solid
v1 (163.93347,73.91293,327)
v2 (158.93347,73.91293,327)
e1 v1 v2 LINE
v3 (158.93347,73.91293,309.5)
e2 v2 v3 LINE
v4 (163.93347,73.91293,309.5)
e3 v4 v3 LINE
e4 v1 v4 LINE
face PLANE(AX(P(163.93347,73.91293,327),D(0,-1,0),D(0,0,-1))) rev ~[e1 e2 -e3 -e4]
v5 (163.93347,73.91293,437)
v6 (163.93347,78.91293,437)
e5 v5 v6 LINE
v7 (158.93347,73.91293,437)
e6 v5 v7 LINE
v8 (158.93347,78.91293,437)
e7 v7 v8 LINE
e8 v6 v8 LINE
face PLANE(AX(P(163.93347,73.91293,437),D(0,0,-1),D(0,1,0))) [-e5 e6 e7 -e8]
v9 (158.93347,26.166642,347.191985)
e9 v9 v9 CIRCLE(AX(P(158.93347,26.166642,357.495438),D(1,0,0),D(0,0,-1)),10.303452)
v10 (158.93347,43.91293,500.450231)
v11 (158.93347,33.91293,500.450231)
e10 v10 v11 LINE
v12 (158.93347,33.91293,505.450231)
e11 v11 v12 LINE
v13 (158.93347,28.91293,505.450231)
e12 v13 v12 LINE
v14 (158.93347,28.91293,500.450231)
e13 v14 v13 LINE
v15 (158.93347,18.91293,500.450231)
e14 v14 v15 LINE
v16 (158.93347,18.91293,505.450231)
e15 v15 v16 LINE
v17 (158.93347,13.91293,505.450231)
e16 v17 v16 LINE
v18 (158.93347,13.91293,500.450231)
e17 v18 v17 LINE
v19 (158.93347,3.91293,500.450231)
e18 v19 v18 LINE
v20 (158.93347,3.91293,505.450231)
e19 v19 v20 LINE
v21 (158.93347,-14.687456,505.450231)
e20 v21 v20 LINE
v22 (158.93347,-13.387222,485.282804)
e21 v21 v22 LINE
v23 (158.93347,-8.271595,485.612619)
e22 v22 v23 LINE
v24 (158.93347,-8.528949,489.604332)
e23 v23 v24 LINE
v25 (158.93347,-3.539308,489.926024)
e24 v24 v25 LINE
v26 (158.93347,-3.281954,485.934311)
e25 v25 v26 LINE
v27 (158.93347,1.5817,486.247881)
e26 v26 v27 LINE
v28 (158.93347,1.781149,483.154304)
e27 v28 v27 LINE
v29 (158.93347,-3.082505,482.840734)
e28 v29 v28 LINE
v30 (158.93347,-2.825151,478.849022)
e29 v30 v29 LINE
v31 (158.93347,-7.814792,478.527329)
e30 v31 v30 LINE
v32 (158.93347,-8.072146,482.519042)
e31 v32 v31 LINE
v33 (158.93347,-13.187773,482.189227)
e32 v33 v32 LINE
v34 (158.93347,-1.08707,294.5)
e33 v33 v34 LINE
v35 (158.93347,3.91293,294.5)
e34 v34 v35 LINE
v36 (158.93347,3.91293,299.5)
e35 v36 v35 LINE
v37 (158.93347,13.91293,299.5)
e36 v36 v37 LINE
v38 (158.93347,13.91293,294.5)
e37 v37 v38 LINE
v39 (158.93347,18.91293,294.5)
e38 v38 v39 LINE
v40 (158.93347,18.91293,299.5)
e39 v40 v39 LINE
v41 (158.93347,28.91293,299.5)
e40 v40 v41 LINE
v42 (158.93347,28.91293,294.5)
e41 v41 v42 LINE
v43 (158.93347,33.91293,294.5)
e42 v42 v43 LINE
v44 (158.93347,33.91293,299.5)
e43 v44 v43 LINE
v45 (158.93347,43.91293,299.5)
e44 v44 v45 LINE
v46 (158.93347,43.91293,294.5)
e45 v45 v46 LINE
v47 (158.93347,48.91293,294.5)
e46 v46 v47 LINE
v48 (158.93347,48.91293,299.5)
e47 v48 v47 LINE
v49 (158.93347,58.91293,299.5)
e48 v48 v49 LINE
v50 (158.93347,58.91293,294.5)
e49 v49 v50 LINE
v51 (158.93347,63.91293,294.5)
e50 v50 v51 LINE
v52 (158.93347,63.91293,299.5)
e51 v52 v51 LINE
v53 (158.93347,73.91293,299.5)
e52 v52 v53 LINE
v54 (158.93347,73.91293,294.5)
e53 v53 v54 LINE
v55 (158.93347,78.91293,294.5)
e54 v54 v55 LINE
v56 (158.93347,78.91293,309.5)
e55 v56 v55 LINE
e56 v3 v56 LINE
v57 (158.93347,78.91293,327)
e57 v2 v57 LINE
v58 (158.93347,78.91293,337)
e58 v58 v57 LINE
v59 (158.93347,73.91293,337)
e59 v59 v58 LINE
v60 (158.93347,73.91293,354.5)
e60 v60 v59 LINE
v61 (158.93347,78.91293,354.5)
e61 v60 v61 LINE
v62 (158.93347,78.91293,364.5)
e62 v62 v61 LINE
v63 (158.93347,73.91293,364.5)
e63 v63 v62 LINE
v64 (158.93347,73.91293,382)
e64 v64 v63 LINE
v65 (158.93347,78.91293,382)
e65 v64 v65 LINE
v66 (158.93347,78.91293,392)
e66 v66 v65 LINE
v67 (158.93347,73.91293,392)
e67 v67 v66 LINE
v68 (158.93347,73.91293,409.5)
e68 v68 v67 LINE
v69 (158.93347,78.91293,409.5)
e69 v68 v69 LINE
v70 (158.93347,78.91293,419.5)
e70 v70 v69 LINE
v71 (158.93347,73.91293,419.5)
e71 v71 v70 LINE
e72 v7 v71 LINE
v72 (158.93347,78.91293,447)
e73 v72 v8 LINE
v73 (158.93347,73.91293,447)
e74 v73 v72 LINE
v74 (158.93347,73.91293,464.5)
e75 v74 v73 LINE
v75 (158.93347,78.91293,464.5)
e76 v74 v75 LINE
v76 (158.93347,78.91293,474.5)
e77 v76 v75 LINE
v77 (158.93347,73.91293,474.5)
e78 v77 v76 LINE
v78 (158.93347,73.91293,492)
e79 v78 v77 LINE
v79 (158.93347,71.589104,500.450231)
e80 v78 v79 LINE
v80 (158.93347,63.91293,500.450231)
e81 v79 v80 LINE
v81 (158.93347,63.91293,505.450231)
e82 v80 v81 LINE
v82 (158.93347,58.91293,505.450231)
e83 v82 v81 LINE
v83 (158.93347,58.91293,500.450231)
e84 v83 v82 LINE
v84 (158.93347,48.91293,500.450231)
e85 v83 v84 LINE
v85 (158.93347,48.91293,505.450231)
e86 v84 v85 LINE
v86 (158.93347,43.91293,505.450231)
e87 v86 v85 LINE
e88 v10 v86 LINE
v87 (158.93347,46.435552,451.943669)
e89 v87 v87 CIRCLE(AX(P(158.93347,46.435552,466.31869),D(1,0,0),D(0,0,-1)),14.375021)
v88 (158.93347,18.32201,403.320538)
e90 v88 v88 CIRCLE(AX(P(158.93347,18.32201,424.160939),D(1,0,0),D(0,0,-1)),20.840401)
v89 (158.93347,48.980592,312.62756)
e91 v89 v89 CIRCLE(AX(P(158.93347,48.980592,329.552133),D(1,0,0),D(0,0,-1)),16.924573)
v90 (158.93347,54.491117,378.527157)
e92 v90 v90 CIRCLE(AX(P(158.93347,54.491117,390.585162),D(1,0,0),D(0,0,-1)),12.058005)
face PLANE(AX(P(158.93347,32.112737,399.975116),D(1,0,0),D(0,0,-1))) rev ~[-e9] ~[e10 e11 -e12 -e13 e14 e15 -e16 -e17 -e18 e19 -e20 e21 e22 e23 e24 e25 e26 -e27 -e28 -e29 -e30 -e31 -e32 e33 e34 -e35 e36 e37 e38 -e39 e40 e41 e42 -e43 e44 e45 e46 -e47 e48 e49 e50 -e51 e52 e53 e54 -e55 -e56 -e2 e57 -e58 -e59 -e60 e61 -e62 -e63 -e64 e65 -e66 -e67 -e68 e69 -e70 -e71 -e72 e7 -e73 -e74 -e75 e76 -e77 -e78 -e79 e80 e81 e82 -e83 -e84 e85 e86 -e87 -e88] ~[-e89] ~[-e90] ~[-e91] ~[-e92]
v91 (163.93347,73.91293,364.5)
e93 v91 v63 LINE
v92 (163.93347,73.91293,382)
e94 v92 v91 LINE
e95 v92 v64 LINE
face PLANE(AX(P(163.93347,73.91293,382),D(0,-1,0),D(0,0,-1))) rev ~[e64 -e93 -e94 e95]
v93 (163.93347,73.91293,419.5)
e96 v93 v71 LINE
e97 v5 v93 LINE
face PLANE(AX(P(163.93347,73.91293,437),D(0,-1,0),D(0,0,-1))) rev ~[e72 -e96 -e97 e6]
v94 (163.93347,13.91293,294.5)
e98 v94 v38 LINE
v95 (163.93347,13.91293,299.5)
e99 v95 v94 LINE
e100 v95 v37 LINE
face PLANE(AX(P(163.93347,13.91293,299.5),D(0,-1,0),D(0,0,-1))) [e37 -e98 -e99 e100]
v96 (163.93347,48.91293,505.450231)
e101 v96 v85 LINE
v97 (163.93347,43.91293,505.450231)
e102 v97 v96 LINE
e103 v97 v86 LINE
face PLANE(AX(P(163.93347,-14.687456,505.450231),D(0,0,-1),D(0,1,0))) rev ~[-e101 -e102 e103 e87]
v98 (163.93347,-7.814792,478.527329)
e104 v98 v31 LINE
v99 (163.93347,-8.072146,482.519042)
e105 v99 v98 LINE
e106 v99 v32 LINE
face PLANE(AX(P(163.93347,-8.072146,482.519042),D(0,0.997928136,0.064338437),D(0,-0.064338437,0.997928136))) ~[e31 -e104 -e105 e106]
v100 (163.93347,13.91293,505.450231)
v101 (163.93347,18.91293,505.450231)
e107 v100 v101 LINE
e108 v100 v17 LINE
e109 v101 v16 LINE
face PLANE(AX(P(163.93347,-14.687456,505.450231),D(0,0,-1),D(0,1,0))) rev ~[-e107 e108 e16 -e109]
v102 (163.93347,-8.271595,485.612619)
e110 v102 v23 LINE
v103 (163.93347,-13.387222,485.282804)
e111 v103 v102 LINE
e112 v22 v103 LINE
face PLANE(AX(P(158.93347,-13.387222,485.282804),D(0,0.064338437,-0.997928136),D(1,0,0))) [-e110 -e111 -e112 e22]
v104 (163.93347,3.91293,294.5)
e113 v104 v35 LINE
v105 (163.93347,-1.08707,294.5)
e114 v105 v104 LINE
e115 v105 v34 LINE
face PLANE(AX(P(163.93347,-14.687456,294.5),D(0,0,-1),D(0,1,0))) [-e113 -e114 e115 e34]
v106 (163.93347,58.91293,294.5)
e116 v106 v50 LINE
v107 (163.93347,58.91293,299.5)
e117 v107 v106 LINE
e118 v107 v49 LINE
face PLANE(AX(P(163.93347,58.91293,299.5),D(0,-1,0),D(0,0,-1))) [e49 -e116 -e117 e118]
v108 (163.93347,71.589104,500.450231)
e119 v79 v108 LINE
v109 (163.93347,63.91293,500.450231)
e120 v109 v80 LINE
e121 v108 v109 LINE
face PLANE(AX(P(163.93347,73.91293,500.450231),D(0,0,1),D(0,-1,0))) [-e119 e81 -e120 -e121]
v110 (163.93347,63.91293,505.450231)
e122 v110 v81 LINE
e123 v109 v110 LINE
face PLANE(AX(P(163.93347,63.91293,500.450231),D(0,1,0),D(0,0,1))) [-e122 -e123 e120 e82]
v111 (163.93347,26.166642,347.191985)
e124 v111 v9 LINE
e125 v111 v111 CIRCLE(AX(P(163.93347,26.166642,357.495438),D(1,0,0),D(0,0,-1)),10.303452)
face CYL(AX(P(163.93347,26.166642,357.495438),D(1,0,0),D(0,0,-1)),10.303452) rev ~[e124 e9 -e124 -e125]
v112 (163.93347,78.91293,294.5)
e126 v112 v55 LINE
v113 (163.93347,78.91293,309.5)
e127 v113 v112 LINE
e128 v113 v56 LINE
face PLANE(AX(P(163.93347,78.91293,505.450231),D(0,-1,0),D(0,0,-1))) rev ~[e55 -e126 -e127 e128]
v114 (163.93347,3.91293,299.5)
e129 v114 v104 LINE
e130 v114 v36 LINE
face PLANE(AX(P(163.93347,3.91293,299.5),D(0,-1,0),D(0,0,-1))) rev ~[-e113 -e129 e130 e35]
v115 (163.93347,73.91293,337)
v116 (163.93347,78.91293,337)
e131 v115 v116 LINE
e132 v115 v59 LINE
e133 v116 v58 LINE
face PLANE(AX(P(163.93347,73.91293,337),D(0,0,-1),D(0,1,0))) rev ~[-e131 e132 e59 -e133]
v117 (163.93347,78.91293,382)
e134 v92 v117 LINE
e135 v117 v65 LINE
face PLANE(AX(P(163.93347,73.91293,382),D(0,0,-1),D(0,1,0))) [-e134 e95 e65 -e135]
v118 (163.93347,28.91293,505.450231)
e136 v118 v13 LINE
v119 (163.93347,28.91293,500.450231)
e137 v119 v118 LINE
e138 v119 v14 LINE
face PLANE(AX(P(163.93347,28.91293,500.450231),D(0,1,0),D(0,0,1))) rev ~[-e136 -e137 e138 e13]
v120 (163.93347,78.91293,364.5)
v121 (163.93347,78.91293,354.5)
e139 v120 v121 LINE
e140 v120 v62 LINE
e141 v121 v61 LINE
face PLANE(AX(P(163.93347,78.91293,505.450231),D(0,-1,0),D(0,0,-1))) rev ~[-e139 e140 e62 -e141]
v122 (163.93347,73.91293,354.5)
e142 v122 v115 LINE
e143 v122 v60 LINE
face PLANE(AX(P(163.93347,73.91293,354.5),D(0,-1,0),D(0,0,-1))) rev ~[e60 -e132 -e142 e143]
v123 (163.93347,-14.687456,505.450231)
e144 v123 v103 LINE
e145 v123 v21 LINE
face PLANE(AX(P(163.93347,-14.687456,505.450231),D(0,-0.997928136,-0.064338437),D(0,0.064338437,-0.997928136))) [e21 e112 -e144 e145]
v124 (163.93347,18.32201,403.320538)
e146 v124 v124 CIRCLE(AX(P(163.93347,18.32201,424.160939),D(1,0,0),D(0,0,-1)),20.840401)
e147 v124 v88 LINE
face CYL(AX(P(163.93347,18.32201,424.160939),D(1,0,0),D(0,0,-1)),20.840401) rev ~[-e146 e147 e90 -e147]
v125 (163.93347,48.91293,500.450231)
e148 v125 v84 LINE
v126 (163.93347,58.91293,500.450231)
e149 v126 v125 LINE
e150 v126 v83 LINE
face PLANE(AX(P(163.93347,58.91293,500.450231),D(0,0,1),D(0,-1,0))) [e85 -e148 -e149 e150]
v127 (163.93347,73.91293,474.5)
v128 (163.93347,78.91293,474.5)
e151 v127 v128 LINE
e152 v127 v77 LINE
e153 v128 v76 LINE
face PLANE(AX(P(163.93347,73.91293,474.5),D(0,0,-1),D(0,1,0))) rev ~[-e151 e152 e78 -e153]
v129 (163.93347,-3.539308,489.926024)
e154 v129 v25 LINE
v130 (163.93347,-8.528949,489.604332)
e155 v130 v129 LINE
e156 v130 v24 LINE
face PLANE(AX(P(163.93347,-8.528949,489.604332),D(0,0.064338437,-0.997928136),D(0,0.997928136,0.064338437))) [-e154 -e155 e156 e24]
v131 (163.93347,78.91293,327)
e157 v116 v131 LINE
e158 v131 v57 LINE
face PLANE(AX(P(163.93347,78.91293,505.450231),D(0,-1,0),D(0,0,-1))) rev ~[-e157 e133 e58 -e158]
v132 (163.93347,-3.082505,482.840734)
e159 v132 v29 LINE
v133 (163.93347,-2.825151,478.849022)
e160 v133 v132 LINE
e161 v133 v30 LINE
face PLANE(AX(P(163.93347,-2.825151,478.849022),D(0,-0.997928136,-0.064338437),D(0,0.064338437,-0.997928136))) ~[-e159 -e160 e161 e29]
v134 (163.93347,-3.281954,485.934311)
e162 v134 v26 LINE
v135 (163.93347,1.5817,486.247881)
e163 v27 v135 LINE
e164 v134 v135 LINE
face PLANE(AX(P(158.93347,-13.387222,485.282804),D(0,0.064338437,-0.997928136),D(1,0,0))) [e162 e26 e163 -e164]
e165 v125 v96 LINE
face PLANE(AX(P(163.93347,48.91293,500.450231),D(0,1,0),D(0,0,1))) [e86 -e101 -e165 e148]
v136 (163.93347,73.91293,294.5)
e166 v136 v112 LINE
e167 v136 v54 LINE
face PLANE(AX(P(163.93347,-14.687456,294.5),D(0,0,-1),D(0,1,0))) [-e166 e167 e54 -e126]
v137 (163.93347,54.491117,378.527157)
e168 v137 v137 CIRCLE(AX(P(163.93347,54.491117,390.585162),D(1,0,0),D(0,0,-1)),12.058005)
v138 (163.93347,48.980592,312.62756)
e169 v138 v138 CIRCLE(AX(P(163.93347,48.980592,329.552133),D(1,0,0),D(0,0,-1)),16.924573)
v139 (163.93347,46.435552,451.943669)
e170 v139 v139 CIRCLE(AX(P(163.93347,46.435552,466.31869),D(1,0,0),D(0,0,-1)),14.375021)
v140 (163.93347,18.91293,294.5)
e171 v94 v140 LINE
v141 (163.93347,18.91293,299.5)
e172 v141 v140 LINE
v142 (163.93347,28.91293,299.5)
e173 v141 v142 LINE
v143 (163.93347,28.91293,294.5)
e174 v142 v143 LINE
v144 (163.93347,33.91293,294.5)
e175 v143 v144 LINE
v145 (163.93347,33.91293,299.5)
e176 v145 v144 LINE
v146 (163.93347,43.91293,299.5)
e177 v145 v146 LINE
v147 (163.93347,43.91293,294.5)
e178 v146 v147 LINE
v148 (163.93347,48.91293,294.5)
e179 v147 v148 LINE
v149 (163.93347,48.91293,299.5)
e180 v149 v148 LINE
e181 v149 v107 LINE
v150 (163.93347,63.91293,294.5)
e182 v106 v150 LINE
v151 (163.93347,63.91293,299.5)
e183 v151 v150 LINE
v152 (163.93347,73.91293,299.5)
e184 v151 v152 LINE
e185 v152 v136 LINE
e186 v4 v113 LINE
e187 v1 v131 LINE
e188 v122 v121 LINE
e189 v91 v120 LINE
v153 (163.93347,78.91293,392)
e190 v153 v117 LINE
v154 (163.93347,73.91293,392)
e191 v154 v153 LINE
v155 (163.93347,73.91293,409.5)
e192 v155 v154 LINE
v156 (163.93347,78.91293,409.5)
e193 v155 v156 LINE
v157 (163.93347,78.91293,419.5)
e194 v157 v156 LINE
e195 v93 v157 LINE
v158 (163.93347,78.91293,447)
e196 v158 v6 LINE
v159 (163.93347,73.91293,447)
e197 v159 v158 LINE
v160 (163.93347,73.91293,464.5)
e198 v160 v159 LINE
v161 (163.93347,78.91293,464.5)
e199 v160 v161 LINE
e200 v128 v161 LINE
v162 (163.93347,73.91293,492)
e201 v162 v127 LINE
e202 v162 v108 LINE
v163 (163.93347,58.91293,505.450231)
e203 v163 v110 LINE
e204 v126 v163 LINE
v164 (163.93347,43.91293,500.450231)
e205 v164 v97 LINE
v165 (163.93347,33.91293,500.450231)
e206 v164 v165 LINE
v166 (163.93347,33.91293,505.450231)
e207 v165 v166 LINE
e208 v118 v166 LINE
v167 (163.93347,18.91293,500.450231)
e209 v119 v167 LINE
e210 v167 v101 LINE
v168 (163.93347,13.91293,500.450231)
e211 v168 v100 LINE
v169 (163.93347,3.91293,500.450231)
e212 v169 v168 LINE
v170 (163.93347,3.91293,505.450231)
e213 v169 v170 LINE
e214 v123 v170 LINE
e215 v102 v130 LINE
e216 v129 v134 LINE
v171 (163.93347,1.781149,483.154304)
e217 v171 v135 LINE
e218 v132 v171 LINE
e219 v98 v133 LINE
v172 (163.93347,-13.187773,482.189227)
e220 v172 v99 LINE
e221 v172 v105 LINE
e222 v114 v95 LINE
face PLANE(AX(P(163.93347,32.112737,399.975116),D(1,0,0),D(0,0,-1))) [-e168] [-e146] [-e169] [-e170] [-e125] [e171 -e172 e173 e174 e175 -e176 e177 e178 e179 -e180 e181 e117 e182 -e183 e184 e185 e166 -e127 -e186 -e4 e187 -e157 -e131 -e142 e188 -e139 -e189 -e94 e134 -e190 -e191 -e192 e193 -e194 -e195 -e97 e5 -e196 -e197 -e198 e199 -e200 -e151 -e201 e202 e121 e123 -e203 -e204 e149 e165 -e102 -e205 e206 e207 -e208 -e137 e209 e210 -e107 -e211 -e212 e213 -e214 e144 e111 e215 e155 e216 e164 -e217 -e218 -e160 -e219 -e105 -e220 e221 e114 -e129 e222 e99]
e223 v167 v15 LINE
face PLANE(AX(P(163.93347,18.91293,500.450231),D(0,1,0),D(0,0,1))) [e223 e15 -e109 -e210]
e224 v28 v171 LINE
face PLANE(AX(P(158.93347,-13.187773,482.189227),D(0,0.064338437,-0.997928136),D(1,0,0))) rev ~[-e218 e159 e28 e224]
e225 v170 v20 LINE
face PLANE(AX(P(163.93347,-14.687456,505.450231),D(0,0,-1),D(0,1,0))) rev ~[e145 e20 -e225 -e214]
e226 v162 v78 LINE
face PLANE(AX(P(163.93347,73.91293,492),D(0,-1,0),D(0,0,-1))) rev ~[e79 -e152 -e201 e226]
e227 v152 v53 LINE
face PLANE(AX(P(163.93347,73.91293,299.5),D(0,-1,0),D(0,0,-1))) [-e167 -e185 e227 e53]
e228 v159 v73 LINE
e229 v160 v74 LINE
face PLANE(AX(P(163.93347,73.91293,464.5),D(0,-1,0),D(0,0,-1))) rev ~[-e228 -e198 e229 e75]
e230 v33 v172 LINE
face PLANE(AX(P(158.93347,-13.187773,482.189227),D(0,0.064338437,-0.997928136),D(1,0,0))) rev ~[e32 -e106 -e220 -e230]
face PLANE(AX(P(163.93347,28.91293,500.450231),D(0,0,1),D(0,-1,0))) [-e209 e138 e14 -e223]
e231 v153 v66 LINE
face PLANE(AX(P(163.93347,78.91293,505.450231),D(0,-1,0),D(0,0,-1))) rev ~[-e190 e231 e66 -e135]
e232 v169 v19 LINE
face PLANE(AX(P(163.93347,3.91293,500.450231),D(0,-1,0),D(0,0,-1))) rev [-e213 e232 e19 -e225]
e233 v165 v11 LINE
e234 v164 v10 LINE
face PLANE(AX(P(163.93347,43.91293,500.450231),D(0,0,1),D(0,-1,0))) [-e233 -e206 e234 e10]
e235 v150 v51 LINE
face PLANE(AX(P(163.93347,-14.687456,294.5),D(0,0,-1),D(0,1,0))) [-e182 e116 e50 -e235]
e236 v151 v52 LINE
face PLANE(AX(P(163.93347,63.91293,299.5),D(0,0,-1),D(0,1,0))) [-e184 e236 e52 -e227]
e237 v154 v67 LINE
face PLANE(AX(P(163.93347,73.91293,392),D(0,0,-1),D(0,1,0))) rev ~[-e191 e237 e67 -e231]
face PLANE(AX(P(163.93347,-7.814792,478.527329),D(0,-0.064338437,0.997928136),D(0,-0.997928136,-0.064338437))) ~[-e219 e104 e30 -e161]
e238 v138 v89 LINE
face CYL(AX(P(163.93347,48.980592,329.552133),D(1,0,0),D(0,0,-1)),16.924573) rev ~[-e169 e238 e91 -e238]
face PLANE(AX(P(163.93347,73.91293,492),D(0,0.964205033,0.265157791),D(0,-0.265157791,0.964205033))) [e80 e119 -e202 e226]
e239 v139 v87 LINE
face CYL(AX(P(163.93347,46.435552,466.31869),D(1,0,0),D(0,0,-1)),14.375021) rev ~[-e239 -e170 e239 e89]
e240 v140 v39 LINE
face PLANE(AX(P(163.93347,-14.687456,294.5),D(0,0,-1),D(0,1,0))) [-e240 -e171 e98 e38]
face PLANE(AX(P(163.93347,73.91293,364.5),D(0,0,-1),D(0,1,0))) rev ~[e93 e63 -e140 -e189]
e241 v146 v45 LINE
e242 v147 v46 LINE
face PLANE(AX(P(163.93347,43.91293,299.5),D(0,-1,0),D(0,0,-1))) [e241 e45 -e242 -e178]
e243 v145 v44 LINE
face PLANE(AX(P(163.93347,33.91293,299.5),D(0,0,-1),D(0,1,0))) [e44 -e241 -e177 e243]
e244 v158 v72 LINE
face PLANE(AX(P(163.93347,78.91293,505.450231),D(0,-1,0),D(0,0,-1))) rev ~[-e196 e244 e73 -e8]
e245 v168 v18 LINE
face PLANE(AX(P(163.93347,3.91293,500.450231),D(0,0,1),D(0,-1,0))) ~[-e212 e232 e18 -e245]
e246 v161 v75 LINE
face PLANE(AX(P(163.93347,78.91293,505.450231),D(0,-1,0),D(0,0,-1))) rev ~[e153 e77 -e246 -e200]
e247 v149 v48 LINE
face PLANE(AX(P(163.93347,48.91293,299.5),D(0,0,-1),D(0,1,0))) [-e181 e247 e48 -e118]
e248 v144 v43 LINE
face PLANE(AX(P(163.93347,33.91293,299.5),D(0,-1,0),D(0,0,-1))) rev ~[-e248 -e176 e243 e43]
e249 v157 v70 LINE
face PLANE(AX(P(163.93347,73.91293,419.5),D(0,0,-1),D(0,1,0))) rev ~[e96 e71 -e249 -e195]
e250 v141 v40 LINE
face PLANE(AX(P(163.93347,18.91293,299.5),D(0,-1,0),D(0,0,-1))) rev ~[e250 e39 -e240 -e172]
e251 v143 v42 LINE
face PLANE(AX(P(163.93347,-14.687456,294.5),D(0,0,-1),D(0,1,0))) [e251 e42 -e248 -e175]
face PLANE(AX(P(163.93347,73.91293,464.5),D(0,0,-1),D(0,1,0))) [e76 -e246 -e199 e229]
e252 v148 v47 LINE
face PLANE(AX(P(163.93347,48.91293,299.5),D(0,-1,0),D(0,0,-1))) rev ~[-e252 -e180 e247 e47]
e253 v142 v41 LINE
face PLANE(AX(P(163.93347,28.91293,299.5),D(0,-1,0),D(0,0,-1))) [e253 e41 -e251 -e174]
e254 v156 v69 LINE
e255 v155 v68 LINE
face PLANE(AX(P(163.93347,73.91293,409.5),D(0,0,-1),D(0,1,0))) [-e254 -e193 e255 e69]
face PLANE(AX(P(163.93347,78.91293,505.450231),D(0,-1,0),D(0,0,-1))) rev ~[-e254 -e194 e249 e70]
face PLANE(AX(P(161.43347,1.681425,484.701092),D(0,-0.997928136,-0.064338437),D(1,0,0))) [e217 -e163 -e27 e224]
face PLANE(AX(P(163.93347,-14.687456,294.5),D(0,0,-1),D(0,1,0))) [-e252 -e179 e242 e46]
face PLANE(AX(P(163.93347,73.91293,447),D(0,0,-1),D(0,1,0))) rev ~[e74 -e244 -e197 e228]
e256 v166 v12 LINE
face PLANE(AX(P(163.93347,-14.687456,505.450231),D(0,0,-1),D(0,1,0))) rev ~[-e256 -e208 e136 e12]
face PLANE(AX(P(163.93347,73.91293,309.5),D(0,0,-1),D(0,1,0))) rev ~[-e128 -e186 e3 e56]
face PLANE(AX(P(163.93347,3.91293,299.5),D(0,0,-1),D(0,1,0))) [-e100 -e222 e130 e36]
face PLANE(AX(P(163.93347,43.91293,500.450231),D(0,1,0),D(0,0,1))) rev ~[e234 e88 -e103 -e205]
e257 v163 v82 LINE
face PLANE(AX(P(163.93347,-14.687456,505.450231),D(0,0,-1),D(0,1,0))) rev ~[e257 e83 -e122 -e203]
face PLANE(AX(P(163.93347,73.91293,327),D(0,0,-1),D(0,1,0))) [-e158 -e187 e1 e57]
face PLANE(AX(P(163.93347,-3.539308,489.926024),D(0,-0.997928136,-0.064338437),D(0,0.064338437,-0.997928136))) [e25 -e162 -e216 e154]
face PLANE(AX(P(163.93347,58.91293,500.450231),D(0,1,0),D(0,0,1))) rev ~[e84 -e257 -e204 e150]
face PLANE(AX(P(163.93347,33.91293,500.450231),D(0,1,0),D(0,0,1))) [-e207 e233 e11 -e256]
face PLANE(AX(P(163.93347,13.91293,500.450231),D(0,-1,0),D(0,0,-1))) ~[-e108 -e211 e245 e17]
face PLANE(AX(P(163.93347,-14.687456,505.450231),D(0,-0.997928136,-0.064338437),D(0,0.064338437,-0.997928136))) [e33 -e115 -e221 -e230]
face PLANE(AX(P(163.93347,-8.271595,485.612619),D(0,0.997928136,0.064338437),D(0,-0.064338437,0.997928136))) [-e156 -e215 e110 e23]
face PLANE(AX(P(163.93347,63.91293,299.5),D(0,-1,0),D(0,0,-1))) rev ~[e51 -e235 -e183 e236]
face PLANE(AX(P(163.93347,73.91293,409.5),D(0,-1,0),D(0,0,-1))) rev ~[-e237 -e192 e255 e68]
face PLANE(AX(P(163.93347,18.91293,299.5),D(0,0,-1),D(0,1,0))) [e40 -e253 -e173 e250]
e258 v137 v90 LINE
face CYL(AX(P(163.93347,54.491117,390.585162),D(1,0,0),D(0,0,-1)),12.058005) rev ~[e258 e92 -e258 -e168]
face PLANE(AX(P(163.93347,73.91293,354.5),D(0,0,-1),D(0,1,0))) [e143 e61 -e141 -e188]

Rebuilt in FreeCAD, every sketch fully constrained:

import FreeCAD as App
import Part
import Sketcher

V = App.Vector
Q = App.Units.Quantity

doc = App.newDocument("Part")
params = doc.addObject("Spreadsheet::Sheet", "Params")
for row, (alias, value) in enumerate([
    ("pad1_length", "5 mm"),
    ("pocket1_length", "5 mm"),
    ("sketch3_width", "10 mm"),
    ("sketch3_height", "5 mm"),
    ("pocket2_length", "5 mm"),
    ("linearpattern_pitch", "15 mm"),
    ("sketch4_width", "5 mm"),
    ("sketch4_height", "17.5 mm"),
    ("pocket3_length", "5 mm"),
    ("linearpattern2_pitch", "27.5 mm"),
    ("sketch5_width", "5 mm"),
    ("pocket4_length", "5 mm"),
    ("pocket5_length", "5 mm"),
    ("sketch7_width", "10 mm"),
    ("sketch7_height", "5 mm"),
    ("pocket6_length", "5 mm"),
    ("sketch8_width", "10 mm"),
    ("sketch8_height", "5 mm"),
    ("pocket7_length", "5 mm"),
    ("sketch9_width", "10 mm"),
    ("sketch9_height", "5 mm"),
    ("pocket8_length", "5 mm"),
    ("sketch10_width", "10 mm"),
    ("sketch10_height", "5 mm"),
    ("pocket9_length", "5 mm"),
    ("sketch11_width", "5 mm"),
    ("sketch11_height", "3.1 mm"),
    ("pocket10_length", "15 mm"),
    ("sketch12_length", "4 mm"),
    ("sketch12_length2", "5 mm"),
    ("pocket11_length", "15 mm"),
], start=1):
    params.set(f"A{row}", alias)
    params.set(f"B{row}", "=" + value)
    params.setAlias(f"B{row}", alias)

body = doc.addObject("PartDesign::Body", "Body")

# Sketch on YZ plane
sketch1 = doc.addObject("Sketcher::SketchObject", "Sketch")
body.addObject(sketch1)
sketch1.AttachmentSupport = (doc.YZ_Plane, [""])
sketch1.MapMode = "FlatFace"
sketch1.AttachmentOffset = App.Placement(V(0, 0, 163.93347), App.Rotation())
sketch1.addGeometry([
    Part.LineSegment(V(79, 505, 0), V(-15, 505, 0)),
    Part.LineSegment(V(-15, 505, 0), V(-15, 294, 0)),
    Part.LineSegment(V(-15, 294, 0), V(79, 294, 0)),
    Part.LineSegment(V(79, 294, 0), V(79, 505, 0)),
], False)
sketch1.addConstraint([
    Sketcher.Constraint("Coincident", 0, 2, 1, 1),
    Sketcher.Constraint("Coincident", 1, 2, 2, 1),
    Sketcher.Constraint("Coincident", 2, 2, 3, 1),
    Sketcher.Constraint("Coincident", 3, 2, 0, 1),
    Sketcher.Constraint("Horizontal", 0),
    Sketcher.Constraint("Vertical", 1),
    Sketcher.Constraint("Horizontal", 2),
    Sketcher.Constraint("Vertical", 3),
    Sketcher.Constraint("DistanceY", -1, 1, 1, 2, Q("294.5 mm")),
    Sketcher.Constraint("DistanceY", 1, 2, 1, 1, Q("210.950231 mm")),
    Sketcher.Constraint("DistanceX", 0, 2, 0, 1, Q("93.600386 mm")),
    Sketcher.Constraint("DistanceX", -1, 1, 2, 2, Q("78.91293 mm")),
])
pad1 = doc.addObject("PartDesign::Pad", "Pad")
body.addObject(pad1)
pad1.Profile = sketch1
pad1.setExpression("Length", "Params.pad1_length")
pad1.Reversed = True

# Sketch on YZ plane
sketch2 = doc.addObject("Sketcher::SketchObject", "Sketch001")
body.addObject(sketch2)
sketch2.AttachmentSupport = (doc.YZ_Plane, [""])
sketch2.MapMode = "FlatFace"
sketch2.AttachmentOffset = App.Placement(V(0, 0, 163.93347), App.Rotation())
sketch2.addGeometry([
    Part.LineSegment(V(-1, 294, 0), V(-15, 505, 0)),
    Part.LineSegment(V(-15, 505, 0), V(-15, 294, 0)),
    Part.LineSegment(V(-15, 294, 0), V(-1, 294, 0)),
], False)
sketch2.addConstraint([
    Sketcher.Constraint("Coincident", 0, 2, 1, 1),
    Sketcher.Constraint("Coincident", 1, 2, 2, 1),
    Sketcher.Constraint("Coincident", 2, 2, 0, 1),
    Sketcher.Constraint("Vertical", 1),
    Sketcher.Constraint("Horizontal", 2),
    Sketcher.Constraint("DistanceY", -1, 1, 1, 2, Q("294.5 mm")),
    Sketcher.Constraint("Distance", 0, Q("211.388199 mm")),
    Sketcher.Constraint("DistanceY", 1, 2, 1, 1, Q("210.950231 mm")),
    Sketcher.Constraint("DistanceX", 2, 2, -1, 1, Q("1.08707 mm")),
])
pocket1 = doc.addObject("PartDesign::Pocket", "Pocket")
body.addObject(pocket1)
pocket1.Profile = sketch2
pocket1.setExpression("Length", "Params.pocket1_length")

# Sketch on YZ plane
sketch3 = doc.addObject("Sketcher::SketchObject", "Sketch002")
body.addObject(sketch3)
sketch3.AttachmentSupport = (doc.YZ_Plane, [""])
sketch3.MapMode = "FlatFace"
sketch3.AttachmentOffset = App.Placement(V(0, 0, 163.93347), App.Rotation())
sketch3.addGeometry([
    Part.LineSegment(V(14, 300, 0), V(4, 300, 0)),
    Part.LineSegment(V(4, 300, 0), V(4, 294, 0)),
    Part.LineSegment(V(4, 294, 0), V(14, 294, 0)),
    Part.LineSegment(V(14, 294, 0), V(14, 300, 0)),
], False)
sketch3.addConstraint([
    Sketcher.Constraint("Coincident", 0, 2, 1, 1),
    Sketcher.Constraint("Coincident", 1, 2, 2, 1),
    Sketcher.Constraint("Coincident", 2, 2, 3, 1),
    Sketcher.Constraint("Coincident", 3, 2, 0, 1),
    Sketcher.Constraint("Horizontal", 0),
    Sketcher.Constraint("Vertical", 1),
    Sketcher.Constraint("Horizontal", 2),
    Sketcher.Constraint("Vertical", 3),
    Sketcher.Constraint("DistanceX", 0, 2, 0, 1, Q("10 mm")),
    Sketcher.Constraint("DistanceY", 1, 2, 1, 1, Q("5 mm")),
    Sketcher.Constraint("DistanceY", -1, 1, 0, 2, Q("299.5 mm")),
    Sketcher.Constraint("DistanceX", -1, 1, 0, 2, Q("3.91293 mm")),
])
sketch3.setExpression("Constraints[8]", "Params.sketch3_width")
sketch3.setExpression("Constraints[9]", "Params.sketch3_height")
pocket2 = doc.addObject("PartDesign::Pocket", "Pocket001")
body.addObject(pocket2)
pocket2.Profile = sketch3
pocket2.setExpression("Length", "Params.pocket2_length")
doc.recompute()

linearpattern = doc.addObject("PartDesign::LinearPattern", "LinearPattern")
body.addObject(linearpattern)
linearpattern.Originals = [pocket2]
linearpattern.Direction = (doc.Y_Axis, [""])
linearpattern.Mode = "offset"
linearpattern.setExpression("Offset", "Params.linearpattern_pitch")
linearpattern.Occurrences = 5
body.Tip = linearpattern

# Sketch on YZ plane
sketch4 = doc.addObject("Sketcher::SketchObject", "Sketch003")
body.addObject(sketch4)
sketch4.AttachmentSupport = (doc.YZ_Plane, [""])
sketch4.MapMode = "FlatFace"
sketch4.AttachmentOffset = App.Placement(V(0, 0, 163.93347), App.Rotation())
sketch4.addGeometry([
    Part.LineSegment(V(79, 327, 0), V(74, 327, 0)),
    Part.LineSegment(V(74, 327, 0), V(74, 310, 0)),
    Part.LineSegment(V(74, 310, 0), V(79, 310, 0)),
    Part.LineSegment(V(79, 310, 0), V(79, 327, 0)),
], False)
sketch4.addConstraint([
    Sketcher.Constraint("Coincident", 0, 2, 1, 1),
    Sketcher.Constraint("Coincident", 1, 2, 2, 1),
    Sketcher.Constraint("Coincident", 2, 2, 3, 1),
    Sketcher.Constraint("Coincident", 3, 2, 0, 1),
    Sketcher.Constraint("Horizontal", 0),
    Sketcher.Constraint("Vertical", 1),
    Sketcher.Constraint("Horizontal", 2),
    Sketcher.Constraint("Vertical", 3),
    Sketcher.Constraint("DistanceX", 0, 2, 0, 1, Q("5 mm")),
    Sketcher.Constraint("DistanceY", 1, 2, 1, 1, Q("17.5 mm")),
    Sketcher.Constraint("DistanceY", -1, 1, 0, 2, Q("327 mm")),
    Sketcher.Constraint("DistanceX", -1, 1, 0, 2, Q("73.91293 mm")),
])
sketch4.setExpression("Constraints[8]", "Params.sketch4_width")
sketch4.setExpression("Constraints[9]", "Params.sketch4_height")
pocket3 = doc.addObject("PartDesign::Pocket", "Pocket002")
body.addObject(pocket3)
pocket3.Profile = sketch4
pocket3.setExpression("Length", "Params.pocket3_length")
doc.recompute()

linearpattern2 = doc.addObject("PartDesign::LinearPattern", "LinearPattern001")
body.addObject(linearpattern2)
linearpattern2.Originals = [pocket3]
linearpattern2.Direction = (doc.Z_Axis, [""])
linearpattern2.Mode = "offset"
linearpattern2.setExpression("Offset", "Params.linearpattern2_pitch")
linearpattern2.Occurrences = 7
body.Tip = linearpattern2

# Sketch on YZ plane
sketch5 = doc.addObject("Sketcher::SketchObject", "Sketch004")
body.addObject(sketch5)
sketch5.AttachmentSupport = (doc.YZ_Plane, [""])
sketch5.MapMode = "FlatFace"
sketch5.AttachmentOffset = App.Placement(V(0, 0, 163.93347), App.Rotation())
sketch5.addGeometry([
    Part.LineSegment(V(70, 505, 0), V(74, 492, 0)),
    Part.LineSegment(V(74, 492, 0), V(79, 492, 0)),
    Part.LineSegment(V(79, 492, 0), V(79, 505, 0)),
    Part.LineSegment(V(79, 505, 0), V(70, 505, 0)),
], False)
sketch5.addConstraint([
    Sketcher.Constraint("Coincident", 0, 2, 1, 1),
    Sketcher.Constraint("Coincident", 1, 2, 2, 1),
    Sketcher.Constraint("Coincident", 2, 2, 3, 1),
    Sketcher.Constraint("Coincident", 3, 2, 0, 1),
    Sketcher.Constraint("Horizontal", 1),
    Sketcher.Constraint("Vertical", 2),
    Sketcher.Constraint("Horizontal", 3),
    Sketcher.Constraint("DistanceX", 1, 1, 1, 2, Q("5 mm")),
    Sketcher.Constraint("DistanceY", -1, 1, 0, 2, Q("492 mm")),
    Sketcher.Constraint("DistanceY", 2, 1, 2, 2, Q("13.450231 mm")),
    Sketcher.Constraint("DistanceX", 3, 2, 3, 1, Q("8.698833 mm")),
    Sketcher.Constraint("DistanceX", -1, 1, 0, 2, Q("73.91293 mm")),
])
sketch5.setExpression("Constraints[7]", "Params.sketch5_width")
pocket4 = doc.addObject("PartDesign::Pocket", "Pocket003")
body.addObject(pocket4)
pocket4.Profile = sketch5
pocket4.setExpression("Length", "Params.pocket4_length")

# Sketch on YZ plane
sketch6 = doc.addObject("Sketcher::SketchObject", "Sketch005")
body.addObject(sketch6)
sketch6.AttachmentSupport = (doc.YZ_Plane, [""])
sketch6.MapMode = "FlatFace"
sketch6.AttachmentOffset = App.Placement(V(0, 0, 163.93347), App.Rotation())
sketch6.addGeometry([
    Part.Circle(V(26, 357, 0), V(0, 0, 1), 10),  # 0
    Part.Circle(V(49, 330, 0), V(0, 0, 1), 17),  # 1
    Part.Circle(V(54, 391, 0), V(0, 0, 1), 12),  # 2
    Part.Circle(V(18, 424, 0), V(0, 0, 1), 21),  # 3
    Part.Circle(V(46, 466, 0), V(0, 0, 1), 14),  # 4
], False)
sketch6.addConstraint([
    Sketcher.Constraint("Diameter", 3, Q("41.680801 mm")),
    Sketcher.Constraint("Diameter", 2, Q("24.11601 mm")),
    Sketcher.Constraint("Diameter", 4, Q("28.750042 mm")),
    Sketcher.Constraint("Diameter", 0, Q("20.606904 mm")),
    Sketcher.Constraint("Diameter", 1, Q("33.849146 mm")),
    Sketcher.Constraint("DistanceY", 0, 3, 3, 3, Q("66.665502 mm")),
    Sketcher.Constraint("DistanceX", -1, 1, 1, 3, Q("48.980592 mm")),
    Sketcher.Constraint("DistanceX", -1, 1, 3, 3, Q("18.32201 mm")),
    Sketcher.Constraint("DistanceY", -1, 1, 3, 3, Q("424.160939 mm")),
    Sketcher.Constraint("DistanceY", -1, 1, 4, 3, Q("466.31869 mm")),
    Sketcher.Constraint("DistanceX", 0, 3, 1, 3, Q("22.81395 mm")),
    Sketcher.Constraint("DistanceY", 1, 3, 2, 3, Q("61.033029 mm")),
    Sketcher.Constraint("DistanceX", 0, 3, 4, 3, Q("20.26891 mm")),
    Sketcher.Constraint("DistanceY", -1, 1, 1, 3, Q("329.552133 mm")),
    Sketcher.Constraint("DistanceX", -1, 1, 2, 3, Q("54.491117 mm")),
])
pocket5 = doc.addObject("PartDesign::Pocket", "Pocket004")
body.addObject(pocket5)
pocket5.Profile = sketch6
pocket5.setExpression("Length", "Params.pocket5_length")
doc.recompute()

datumplane = doc.addObject("PartDesign::Plane", "DatumPlane")
body.addObject(datumplane)
datumplane.AttachmentSupport = (doc.XY_Plane, [""])
datumplane.MapMode = "FlatFace"
datumplane.AttachmentOffset = App.Placement(V(0, 0, 399.975116), App.Rotation())
mirrored = doc.addObject("PartDesign::Mirrored", "Mirrored")
body.addObject(mirrored)
mirrored.Originals = [pocket2]
mirrored.MirrorPlane = (datumplane, [""])
body.Tip = mirrored

# Sketch on YZ plane
sketch7 = doc.addObject("Sketcher::SketchObject", "Sketch006")
body.addObject(sketch7)
sketch7.AttachmentSupport = (doc.YZ_Plane, [""])
sketch7.MapMode = "FlatFace"
sketch7.AttachmentOffset = App.Placement(V(0, 0, 163.93347), App.Rotation())
sketch7.addGeometry([
    Part.LineSegment(V(19, 500, 0), V(29, 500, 0)),
    Part.LineSegment(V(29, 500, 0), V(29, 505, 0)),
    Part.LineSegment(V(29, 505, 0), V(19, 505, 0)),
    Part.LineSegment(V(19, 505, 0), V(19, 500, 0)),
], False)
sketch7.addConstraint([
    Sketcher.Constraint("Coincident", 0, 2, 1, 1),
    Sketcher.Constraint("Coincident", 1, 2, 2, 1),
    Sketcher.Constraint("Coincident", 2, 2, 3, 1),
    Sketcher.Constraint("Coincident", 3, 2, 0, 1),
    Sketcher.Constraint("Horizontal", 0),
    Sketcher.Constraint("Vertical", 1),
    Sketcher.Constraint("Horizontal", 2),
    Sketcher.Constraint("Vertical", 3),
    Sketcher.Constraint("DistanceX", 0, 1, 0, 2, Q("10 mm")),
    Sketcher.Constraint("DistanceY", 1, 1, 1, 2, Q("5 mm")),
    Sketcher.Constraint("DistanceX", -1, 1, 0, 2, Q("28.91293 mm")),
    Sketcher.Constraint("DistanceY", -1, 1, 0, 2, Q("500.450231 mm")),
])
sketch7.setExpression("Constraints[8]", "Params.sketch7_width")
sketch7.setExpression("Constraints[9]", "Params.sketch7_height")
pocket6 = doc.addObject("PartDesign::Pocket", "Pocket005")
body.addObject(pocket6)
pocket6.Profile = sketch7
pocket6.setExpression("Length", "Params.pocket6_length")

# Sketch on YZ plane
sketch8 = doc.addObject("Sketcher::SketchObject", "Sketch007")
body.addObject(sketch8)
sketch8.AttachmentSupport = (doc.YZ_Plane, [""])
sketch8.MapMode = "FlatFace"
sketch8.AttachmentOffset = App.Placement(V(0, 0, 163.93347), App.Rotation())
sketch8.addGeometry([
    Part.LineSegment(V(34, 500, 0), V(44, 500, 0)),
    Part.LineSegment(V(44, 500, 0), V(44, 505, 0)),
    Part.LineSegment(V(44, 505, 0), V(34, 505, 0)),
    Part.LineSegment(V(34, 505, 0), V(34, 500, 0)),
], False)
sketch8.addConstraint([
    Sketcher.Constraint("Coincident", 0, 2, 1, 1),
    Sketcher.Constraint("Coincident", 1, 2, 2, 1),
    Sketcher.Constraint("Coincident", 2, 2, 3, 1),
    Sketcher.Constraint("Coincident", 3, 2, 0, 1),
    Sketcher.Constraint("Horizontal", 0),
    Sketcher.Constraint("Vertical", 1),
    Sketcher.Constraint("Horizontal", 2),
    Sketcher.Constraint("Vertical", 3),
    Sketcher.Constraint("DistanceX", 0, 1, 0, 2, Q("10 mm")),
    Sketcher.Constraint("DistanceY", 1, 1, 1, 2, Q("5 mm")),
    Sketcher.Constraint("DistanceX", -1, 1, 0, 2, Q("43.91293 mm")),
    Sketcher.Constraint("DistanceY", -1, 1, 0, 2, Q("500.450231 mm")),
])
sketch8.setExpression("Constraints[8]", "Params.sketch8_width")
sketch8.setExpression("Constraints[9]", "Params.sketch8_height")
pocket7 = doc.addObject("PartDesign::Pocket", "Pocket006")
body.addObject(pocket7)
pocket7.Profile = sketch8
pocket7.setExpression("Length", "Params.pocket7_length")

# Sketch on YZ plane
sketch9 = doc.addObject("Sketcher::SketchObject", "Sketch008")
body.addObject(sketch9)
sketch9.AttachmentSupport = (doc.YZ_Plane, [""])
sketch9.MapMode = "FlatFace"
sketch9.AttachmentOffset = App.Placement(V(0, 0, 163.93347), App.Rotation())
sketch9.addGeometry([
    Part.LineSegment(V(49, 500, 0), V(59, 500, 0)),
    Part.LineSegment(V(59, 500, 0), V(59, 505, 0)),
    Part.LineSegment(V(59, 505, 0), V(49, 505, 0)),
    Part.LineSegment(V(49, 505, 0), V(49, 500, 0)),
], False)
sketch9.addConstraint([
    Sketcher.Constraint("Coincident", 0, 2, 1, 1),
    Sketcher.Constraint("Coincident", 1, 2, 2, 1),
    Sketcher.Constraint("Coincident", 2, 2, 3, 1),
    Sketcher.Constraint("Coincident", 3, 2, 0, 1),
    Sketcher.Constraint("Horizontal", 0),
    Sketcher.Constraint("Vertical", 1),
    Sketcher.Constraint("Horizontal", 2),
    Sketcher.Constraint("Vertical", 3),
    Sketcher.Constraint("DistanceX", 0, 1, 0, 2, Q("10 mm")),
    Sketcher.Constraint("DistanceY", 1, 1, 1, 2, Q("5 mm")),
    Sketcher.Constraint("DistanceX", -1, 1, 0, 2, Q("58.91293 mm")),
    Sketcher.Constraint("DistanceY", -1, 1, 0, 2, Q("500.450231 mm")),
])
sketch9.setExpression("Constraints[8]", "Params.sketch9_width")
sketch9.setExpression("Constraints[9]", "Params.sketch9_height")
pocket8 = doc.addObject("PartDesign::Pocket", "Pocket007")
body.addObject(pocket8)
pocket8.Profile = sketch9
pocket8.setExpression("Length", "Params.pocket8_length")

# Sketch on YZ plane
sketch10 = doc.addObject("Sketcher::SketchObject", "Sketch009")
body.addObject(sketch10)
sketch10.AttachmentSupport = (doc.YZ_Plane, [""])
sketch10.MapMode = "FlatFace"
sketch10.AttachmentOffset = App.Placement(V(0, 0, 163.93347), App.Rotation())
sketch10.addGeometry([
    Part.LineSegment(V(64, 500, 0), V(74, 500, 0)),
    Part.LineSegment(V(74, 500, 0), V(74, 505, 0)),
    Part.LineSegment(V(74, 505, 0), V(64, 505, 0)),
    Part.LineSegment(V(64, 505, 0), V(64, 500, 0)),
], False)
sketch10.addConstraint([
    Sketcher.Constraint("Coincident", 0, 2, 1, 1),
    Sketcher.Constraint("Coincident", 1, 2, 2, 1),
    Sketcher.Constraint("Coincident", 2, 2, 3, 1),
    Sketcher.Constraint("Coincident", 3, 2, 0, 1),
    Sketcher.Constraint("Horizontal", 0),
    Sketcher.Constraint("Vertical", 1),
    Sketcher.Constraint("Horizontal", 2),
    Sketcher.Constraint("Vertical", 3),
    Sketcher.Constraint("DistanceX", 0, 1, 0, 2, Q("10 mm")),
    Sketcher.Constraint("DistanceY", 1, 1, 1, 2, Q("5 mm")),
    Sketcher.Constraint("DistanceX", -1, 1, 0, 2, Q("73.91293 mm")),
    Sketcher.Constraint("DistanceY", -1, 1, 0, 2, Q("500.450231 mm")),
])
sketch10.setExpression("Constraints[8]", "Params.sketch10_width")
sketch10.setExpression("Constraints[9]", "Params.sketch10_height")
pocket9 = doc.addObject("PartDesign::Pocket", "Pocket008")
body.addObject(pocket9)
pocket9.Profile = sketch10
pocket9.setExpression("Length", "Params.pocket9_length")

# Sketch on an angled plane
sketch11 = doc.addObject("Sketcher::SketchObject", "Sketch010")
body.addObject(sketch11)
sketch11.Placement = App.Placement(V(0, 17.825842, 1.149268), App.Rotation(V(1, 0, 0), V(0, -0.064338437, 0.997928136), V(0, -0.997928136, -0.064338437), "ZXY"))
sketch11.addGeometry([
    Part.LineSegment(V(158.9, 485.1, 0), V(158.9, 482, 0)),
    Part.LineSegment(V(158.9, 482, 0), V(163.9, 482, 0)),
    Part.LineSegment(V(163.9, 482, 0), V(163.9, 485.1, 0)),
    Part.LineSegment(V(163.9, 485.1, 0), V(158.9, 485.1, 0)),
], False)
sketch11.addConstraint([
    Sketcher.Constraint("Coincident", 0, 2, 1, 1),
    Sketcher.Constraint("Coincident", 1, 2, 2, 1),
    Sketcher.Constraint("Coincident", 2, 2, 3, 1),
    Sketcher.Constraint("Coincident", 3, 2, 0, 1),
    Sketcher.Constraint("Vertical", 0),
    Sketcher.Constraint("Horizontal", 1),
    Sketcher.Constraint("Vertical", 2),
    Sketcher.Constraint("Horizontal", 3),
    Sketcher.Constraint("DistanceX", 1, 1, 1, 2, Q("5 mm")),
    Sketcher.Constraint("DistanceY", 0, 2, 0, 1, Q("3.1 mm")),
    Sketcher.Constraint("DistanceX", -1, 1, 0, 2, Q("158.93347 mm")),
    Sketcher.Constraint("DistanceY", -1, 1, 0, 2, Q("482.038677 mm")),
])
sketch11.setExpression("Constraints[8]", "Params.sketch11_width")
sketch11.setExpression("Constraints[9]", "Params.sketch11_height")
pocket10 = doc.addObject("PartDesign::Pocket", "Pocket009")
body.addObject(pocket10)
pocket10.Profile = sketch11
pocket10.setExpression("Length", "Params.pocket10_length")

# Sketch on YZ plane
sketch12 = doc.addObject("Sketcher::SketchObject", "Sketch011")
body.addObject(sketch12)
sketch12.AttachmentSupport = (doc.YZ_Plane, [""])
sketch12.MapMode = "FlatFace"
sketch12.AttachmentOffset = App.Placement(V(0, 0, 163.93347), App.Rotation())
sketch12.addGeometry([
    Part.LineSegment(V(-8.5, 489.6, 0), V(-8.3, 485.6, 0)),
    Part.LineSegment(V(-8.3, 485.6, 0), V(-3.3, 485.9, 0)),
    Part.LineSegment(V(-3.3, 485.9, 0), V(-3.5, 489.9, 0)),
    Part.LineSegment(V(-3.5, 489.9, 0), V(-8.5, 489.6, 0)),
], False)
sketch12.addConstraint([
    Sketcher.Constraint("Coincident", 0, 2, 1, 1),
    Sketcher.Constraint("Coincident", 1, 2, 2, 1),
    Sketcher.Constraint("Coincident", 2, 2, 3, 1),
    Sketcher.Constraint("Coincident", 3, 2, 0, 1),
    Sketcher.Constraint("Perpendicular", 0, 1),
    Sketcher.Constraint("Perpendicular", 1, 2),
    Sketcher.Constraint("Perpendicular", 2, 3),
    Sketcher.Constraint("Distance", 0, Q("4 mm")),
    Sketcher.Constraint("Distance", 1, Q("5 mm")),
    Sketcher.Constraint("DistanceY", -1, 1, 0, 2, Q("485.612619 mm")),
    Sketcher.Constraint("DistanceY", -1, 1, 1, 2, Q("485.934311 mm")),
    Sketcher.Constraint("DistanceX", 3, 2, -1, 1, Q("8.528949 mm")),
])
sketch12.setExpression("Constraints[7]", "Params.sketch12_length")
sketch12.setExpression("Constraints[8]", "Params.sketch12_length2")
pocket11 = doc.addObject("PartDesign::Pocket", "Pocket010")
body.addObject(pocket11)
pocket11.Profile = sketch12
pocket11.setExpression("Length", "Params.pocket11_length")
doc.recompute()

datumplane2 = doc.addObject("PartDesign::Plane", "DatumPlane001")
body.addObject(datumplane2)
datumplane2.Placement = App.Placement(V(0, -31.11334, 482.586747), App.Rotation(V(0, -0.997928136, -0.064338437), V(-1, 0, 0), V(0, 0.064338437, -0.997928136), "ZXY"))
mirrored2 = doc.addObject("PartDesign::Mirrored", "Mirrored001")
body.addObject(mirrored2)
mirrored2.Originals = [pocket11]
mirrored2.MirrorPlane = (datumplane2, [""])
body.Tip = mirrored2

doc.recompute()
